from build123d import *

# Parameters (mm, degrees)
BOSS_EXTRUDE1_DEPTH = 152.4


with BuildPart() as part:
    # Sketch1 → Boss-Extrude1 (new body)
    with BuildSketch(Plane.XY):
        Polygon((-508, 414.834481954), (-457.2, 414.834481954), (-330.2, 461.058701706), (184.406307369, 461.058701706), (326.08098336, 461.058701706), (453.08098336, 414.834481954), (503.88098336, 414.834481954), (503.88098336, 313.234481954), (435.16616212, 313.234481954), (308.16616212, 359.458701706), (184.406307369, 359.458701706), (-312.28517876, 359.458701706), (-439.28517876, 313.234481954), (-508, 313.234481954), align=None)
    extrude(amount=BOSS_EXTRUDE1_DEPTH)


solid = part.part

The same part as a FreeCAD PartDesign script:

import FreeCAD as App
import Part
import Sketcher
from FreeCAD import Vector
Q = App.Units.Quantity


def add_polygon(sketch, points):
    """Adds a closed chain of lines whose ends are joined by coincident constraints."""
    first, n = sketch.GeometryCount, len(points)
    for a, b in zip(points, points[1:] + points[:1]):
        sketch.addGeometry(Part.LineSegment(App.Vector(*a, 0), App.Vector(*b, 0)), False)
    for i in range(n):
        sketch.addConstraint(Sketcher.Constraint("Coincident", first + i, 2, first + (i + 1) % n, 1))

doc = App.newDocument("Part")
body = doc.addObject("PartDesign::Body", "Body")

# Sketch on XY plane
sketch1 = body.newObject("Sketcher::SketchObject", "Sketch")
sketch1.AttachmentSupport = (doc.getObject("XY_Plane"), [""])
sketch1.MapMode = "FlatFace"
add_polygon(sketch1, [(-457, 415), (-508, 415), (-508, 313), (-439, 313), (-312, 359), (308, 359), (435, 313), (504, 313), (504, 415), (453, 415), (326, 461), (-330, 461)])  # lines 0-11
sketch1.addConstraint([
    Sketcher.Constraint("Horizontal", 0),
    Sketcher.Constraint("Vertical", 1),
    Sketcher.Constraint("Horizontal", 2),
    Sketcher.Constraint("Horizontal", 4),
    Sketcher.Constraint("Horizontal", 6),
    Sketcher.Constraint("Vertical", 7),
    Sketcher.Constraint("Horizontal", 8),
    Sketcher.Constraint("Horizontal", 10),
    Sketcher.Constraint("Parallel", 5, 9),
    Sketcher.Constraint("Parallel", 3, 11),
    Sketcher.Constraint("Horizontal", 2, 2, 5, 2),
    Sketcher.Constraint("Horizontal", 0, 2, 7, 2),
    Sketcher.Constraint("Equal", 2, 6),
    Sketcher.Constraint("Equal", 0, 8),
    Sketcher.Constraint("Equal", 3, 5),
    Sketcher.Constraint("Equal", 5, 9),
    Sketcher.Constraint("DistanceX", 0, 2, 0, 1, Q("2 in")),
    Sketcher.Constraint("DistanceY", 1, 2, 1, 1, Q("4 in")),
    Sketcher.Constraint("DistanceX", 0, 2, -1, 1, Q("20 in")),
    Sketcher.Constraint("DistanceX", 10, 2, -1, 1, Q("13 in")),
    Sketcher.Constraint("Angle", 3, Q("20 deg")),
    Sketcher.Constraint("DistanceX", 2, 1, 2, 2, 68.714821),
    Sketcher.Constraint("DistanceX", 4, 1, 4, 2, 620.451341),
    Sketcher.Constraint("DistanceY", -1, 1, 3, 2, 359.458702),
])
pad1 = body.newObject("PartDesign::Pad", "Pad")
pad1.Profile = sketch1
pad1.Length = Q("6 in")

doc.recompute()
